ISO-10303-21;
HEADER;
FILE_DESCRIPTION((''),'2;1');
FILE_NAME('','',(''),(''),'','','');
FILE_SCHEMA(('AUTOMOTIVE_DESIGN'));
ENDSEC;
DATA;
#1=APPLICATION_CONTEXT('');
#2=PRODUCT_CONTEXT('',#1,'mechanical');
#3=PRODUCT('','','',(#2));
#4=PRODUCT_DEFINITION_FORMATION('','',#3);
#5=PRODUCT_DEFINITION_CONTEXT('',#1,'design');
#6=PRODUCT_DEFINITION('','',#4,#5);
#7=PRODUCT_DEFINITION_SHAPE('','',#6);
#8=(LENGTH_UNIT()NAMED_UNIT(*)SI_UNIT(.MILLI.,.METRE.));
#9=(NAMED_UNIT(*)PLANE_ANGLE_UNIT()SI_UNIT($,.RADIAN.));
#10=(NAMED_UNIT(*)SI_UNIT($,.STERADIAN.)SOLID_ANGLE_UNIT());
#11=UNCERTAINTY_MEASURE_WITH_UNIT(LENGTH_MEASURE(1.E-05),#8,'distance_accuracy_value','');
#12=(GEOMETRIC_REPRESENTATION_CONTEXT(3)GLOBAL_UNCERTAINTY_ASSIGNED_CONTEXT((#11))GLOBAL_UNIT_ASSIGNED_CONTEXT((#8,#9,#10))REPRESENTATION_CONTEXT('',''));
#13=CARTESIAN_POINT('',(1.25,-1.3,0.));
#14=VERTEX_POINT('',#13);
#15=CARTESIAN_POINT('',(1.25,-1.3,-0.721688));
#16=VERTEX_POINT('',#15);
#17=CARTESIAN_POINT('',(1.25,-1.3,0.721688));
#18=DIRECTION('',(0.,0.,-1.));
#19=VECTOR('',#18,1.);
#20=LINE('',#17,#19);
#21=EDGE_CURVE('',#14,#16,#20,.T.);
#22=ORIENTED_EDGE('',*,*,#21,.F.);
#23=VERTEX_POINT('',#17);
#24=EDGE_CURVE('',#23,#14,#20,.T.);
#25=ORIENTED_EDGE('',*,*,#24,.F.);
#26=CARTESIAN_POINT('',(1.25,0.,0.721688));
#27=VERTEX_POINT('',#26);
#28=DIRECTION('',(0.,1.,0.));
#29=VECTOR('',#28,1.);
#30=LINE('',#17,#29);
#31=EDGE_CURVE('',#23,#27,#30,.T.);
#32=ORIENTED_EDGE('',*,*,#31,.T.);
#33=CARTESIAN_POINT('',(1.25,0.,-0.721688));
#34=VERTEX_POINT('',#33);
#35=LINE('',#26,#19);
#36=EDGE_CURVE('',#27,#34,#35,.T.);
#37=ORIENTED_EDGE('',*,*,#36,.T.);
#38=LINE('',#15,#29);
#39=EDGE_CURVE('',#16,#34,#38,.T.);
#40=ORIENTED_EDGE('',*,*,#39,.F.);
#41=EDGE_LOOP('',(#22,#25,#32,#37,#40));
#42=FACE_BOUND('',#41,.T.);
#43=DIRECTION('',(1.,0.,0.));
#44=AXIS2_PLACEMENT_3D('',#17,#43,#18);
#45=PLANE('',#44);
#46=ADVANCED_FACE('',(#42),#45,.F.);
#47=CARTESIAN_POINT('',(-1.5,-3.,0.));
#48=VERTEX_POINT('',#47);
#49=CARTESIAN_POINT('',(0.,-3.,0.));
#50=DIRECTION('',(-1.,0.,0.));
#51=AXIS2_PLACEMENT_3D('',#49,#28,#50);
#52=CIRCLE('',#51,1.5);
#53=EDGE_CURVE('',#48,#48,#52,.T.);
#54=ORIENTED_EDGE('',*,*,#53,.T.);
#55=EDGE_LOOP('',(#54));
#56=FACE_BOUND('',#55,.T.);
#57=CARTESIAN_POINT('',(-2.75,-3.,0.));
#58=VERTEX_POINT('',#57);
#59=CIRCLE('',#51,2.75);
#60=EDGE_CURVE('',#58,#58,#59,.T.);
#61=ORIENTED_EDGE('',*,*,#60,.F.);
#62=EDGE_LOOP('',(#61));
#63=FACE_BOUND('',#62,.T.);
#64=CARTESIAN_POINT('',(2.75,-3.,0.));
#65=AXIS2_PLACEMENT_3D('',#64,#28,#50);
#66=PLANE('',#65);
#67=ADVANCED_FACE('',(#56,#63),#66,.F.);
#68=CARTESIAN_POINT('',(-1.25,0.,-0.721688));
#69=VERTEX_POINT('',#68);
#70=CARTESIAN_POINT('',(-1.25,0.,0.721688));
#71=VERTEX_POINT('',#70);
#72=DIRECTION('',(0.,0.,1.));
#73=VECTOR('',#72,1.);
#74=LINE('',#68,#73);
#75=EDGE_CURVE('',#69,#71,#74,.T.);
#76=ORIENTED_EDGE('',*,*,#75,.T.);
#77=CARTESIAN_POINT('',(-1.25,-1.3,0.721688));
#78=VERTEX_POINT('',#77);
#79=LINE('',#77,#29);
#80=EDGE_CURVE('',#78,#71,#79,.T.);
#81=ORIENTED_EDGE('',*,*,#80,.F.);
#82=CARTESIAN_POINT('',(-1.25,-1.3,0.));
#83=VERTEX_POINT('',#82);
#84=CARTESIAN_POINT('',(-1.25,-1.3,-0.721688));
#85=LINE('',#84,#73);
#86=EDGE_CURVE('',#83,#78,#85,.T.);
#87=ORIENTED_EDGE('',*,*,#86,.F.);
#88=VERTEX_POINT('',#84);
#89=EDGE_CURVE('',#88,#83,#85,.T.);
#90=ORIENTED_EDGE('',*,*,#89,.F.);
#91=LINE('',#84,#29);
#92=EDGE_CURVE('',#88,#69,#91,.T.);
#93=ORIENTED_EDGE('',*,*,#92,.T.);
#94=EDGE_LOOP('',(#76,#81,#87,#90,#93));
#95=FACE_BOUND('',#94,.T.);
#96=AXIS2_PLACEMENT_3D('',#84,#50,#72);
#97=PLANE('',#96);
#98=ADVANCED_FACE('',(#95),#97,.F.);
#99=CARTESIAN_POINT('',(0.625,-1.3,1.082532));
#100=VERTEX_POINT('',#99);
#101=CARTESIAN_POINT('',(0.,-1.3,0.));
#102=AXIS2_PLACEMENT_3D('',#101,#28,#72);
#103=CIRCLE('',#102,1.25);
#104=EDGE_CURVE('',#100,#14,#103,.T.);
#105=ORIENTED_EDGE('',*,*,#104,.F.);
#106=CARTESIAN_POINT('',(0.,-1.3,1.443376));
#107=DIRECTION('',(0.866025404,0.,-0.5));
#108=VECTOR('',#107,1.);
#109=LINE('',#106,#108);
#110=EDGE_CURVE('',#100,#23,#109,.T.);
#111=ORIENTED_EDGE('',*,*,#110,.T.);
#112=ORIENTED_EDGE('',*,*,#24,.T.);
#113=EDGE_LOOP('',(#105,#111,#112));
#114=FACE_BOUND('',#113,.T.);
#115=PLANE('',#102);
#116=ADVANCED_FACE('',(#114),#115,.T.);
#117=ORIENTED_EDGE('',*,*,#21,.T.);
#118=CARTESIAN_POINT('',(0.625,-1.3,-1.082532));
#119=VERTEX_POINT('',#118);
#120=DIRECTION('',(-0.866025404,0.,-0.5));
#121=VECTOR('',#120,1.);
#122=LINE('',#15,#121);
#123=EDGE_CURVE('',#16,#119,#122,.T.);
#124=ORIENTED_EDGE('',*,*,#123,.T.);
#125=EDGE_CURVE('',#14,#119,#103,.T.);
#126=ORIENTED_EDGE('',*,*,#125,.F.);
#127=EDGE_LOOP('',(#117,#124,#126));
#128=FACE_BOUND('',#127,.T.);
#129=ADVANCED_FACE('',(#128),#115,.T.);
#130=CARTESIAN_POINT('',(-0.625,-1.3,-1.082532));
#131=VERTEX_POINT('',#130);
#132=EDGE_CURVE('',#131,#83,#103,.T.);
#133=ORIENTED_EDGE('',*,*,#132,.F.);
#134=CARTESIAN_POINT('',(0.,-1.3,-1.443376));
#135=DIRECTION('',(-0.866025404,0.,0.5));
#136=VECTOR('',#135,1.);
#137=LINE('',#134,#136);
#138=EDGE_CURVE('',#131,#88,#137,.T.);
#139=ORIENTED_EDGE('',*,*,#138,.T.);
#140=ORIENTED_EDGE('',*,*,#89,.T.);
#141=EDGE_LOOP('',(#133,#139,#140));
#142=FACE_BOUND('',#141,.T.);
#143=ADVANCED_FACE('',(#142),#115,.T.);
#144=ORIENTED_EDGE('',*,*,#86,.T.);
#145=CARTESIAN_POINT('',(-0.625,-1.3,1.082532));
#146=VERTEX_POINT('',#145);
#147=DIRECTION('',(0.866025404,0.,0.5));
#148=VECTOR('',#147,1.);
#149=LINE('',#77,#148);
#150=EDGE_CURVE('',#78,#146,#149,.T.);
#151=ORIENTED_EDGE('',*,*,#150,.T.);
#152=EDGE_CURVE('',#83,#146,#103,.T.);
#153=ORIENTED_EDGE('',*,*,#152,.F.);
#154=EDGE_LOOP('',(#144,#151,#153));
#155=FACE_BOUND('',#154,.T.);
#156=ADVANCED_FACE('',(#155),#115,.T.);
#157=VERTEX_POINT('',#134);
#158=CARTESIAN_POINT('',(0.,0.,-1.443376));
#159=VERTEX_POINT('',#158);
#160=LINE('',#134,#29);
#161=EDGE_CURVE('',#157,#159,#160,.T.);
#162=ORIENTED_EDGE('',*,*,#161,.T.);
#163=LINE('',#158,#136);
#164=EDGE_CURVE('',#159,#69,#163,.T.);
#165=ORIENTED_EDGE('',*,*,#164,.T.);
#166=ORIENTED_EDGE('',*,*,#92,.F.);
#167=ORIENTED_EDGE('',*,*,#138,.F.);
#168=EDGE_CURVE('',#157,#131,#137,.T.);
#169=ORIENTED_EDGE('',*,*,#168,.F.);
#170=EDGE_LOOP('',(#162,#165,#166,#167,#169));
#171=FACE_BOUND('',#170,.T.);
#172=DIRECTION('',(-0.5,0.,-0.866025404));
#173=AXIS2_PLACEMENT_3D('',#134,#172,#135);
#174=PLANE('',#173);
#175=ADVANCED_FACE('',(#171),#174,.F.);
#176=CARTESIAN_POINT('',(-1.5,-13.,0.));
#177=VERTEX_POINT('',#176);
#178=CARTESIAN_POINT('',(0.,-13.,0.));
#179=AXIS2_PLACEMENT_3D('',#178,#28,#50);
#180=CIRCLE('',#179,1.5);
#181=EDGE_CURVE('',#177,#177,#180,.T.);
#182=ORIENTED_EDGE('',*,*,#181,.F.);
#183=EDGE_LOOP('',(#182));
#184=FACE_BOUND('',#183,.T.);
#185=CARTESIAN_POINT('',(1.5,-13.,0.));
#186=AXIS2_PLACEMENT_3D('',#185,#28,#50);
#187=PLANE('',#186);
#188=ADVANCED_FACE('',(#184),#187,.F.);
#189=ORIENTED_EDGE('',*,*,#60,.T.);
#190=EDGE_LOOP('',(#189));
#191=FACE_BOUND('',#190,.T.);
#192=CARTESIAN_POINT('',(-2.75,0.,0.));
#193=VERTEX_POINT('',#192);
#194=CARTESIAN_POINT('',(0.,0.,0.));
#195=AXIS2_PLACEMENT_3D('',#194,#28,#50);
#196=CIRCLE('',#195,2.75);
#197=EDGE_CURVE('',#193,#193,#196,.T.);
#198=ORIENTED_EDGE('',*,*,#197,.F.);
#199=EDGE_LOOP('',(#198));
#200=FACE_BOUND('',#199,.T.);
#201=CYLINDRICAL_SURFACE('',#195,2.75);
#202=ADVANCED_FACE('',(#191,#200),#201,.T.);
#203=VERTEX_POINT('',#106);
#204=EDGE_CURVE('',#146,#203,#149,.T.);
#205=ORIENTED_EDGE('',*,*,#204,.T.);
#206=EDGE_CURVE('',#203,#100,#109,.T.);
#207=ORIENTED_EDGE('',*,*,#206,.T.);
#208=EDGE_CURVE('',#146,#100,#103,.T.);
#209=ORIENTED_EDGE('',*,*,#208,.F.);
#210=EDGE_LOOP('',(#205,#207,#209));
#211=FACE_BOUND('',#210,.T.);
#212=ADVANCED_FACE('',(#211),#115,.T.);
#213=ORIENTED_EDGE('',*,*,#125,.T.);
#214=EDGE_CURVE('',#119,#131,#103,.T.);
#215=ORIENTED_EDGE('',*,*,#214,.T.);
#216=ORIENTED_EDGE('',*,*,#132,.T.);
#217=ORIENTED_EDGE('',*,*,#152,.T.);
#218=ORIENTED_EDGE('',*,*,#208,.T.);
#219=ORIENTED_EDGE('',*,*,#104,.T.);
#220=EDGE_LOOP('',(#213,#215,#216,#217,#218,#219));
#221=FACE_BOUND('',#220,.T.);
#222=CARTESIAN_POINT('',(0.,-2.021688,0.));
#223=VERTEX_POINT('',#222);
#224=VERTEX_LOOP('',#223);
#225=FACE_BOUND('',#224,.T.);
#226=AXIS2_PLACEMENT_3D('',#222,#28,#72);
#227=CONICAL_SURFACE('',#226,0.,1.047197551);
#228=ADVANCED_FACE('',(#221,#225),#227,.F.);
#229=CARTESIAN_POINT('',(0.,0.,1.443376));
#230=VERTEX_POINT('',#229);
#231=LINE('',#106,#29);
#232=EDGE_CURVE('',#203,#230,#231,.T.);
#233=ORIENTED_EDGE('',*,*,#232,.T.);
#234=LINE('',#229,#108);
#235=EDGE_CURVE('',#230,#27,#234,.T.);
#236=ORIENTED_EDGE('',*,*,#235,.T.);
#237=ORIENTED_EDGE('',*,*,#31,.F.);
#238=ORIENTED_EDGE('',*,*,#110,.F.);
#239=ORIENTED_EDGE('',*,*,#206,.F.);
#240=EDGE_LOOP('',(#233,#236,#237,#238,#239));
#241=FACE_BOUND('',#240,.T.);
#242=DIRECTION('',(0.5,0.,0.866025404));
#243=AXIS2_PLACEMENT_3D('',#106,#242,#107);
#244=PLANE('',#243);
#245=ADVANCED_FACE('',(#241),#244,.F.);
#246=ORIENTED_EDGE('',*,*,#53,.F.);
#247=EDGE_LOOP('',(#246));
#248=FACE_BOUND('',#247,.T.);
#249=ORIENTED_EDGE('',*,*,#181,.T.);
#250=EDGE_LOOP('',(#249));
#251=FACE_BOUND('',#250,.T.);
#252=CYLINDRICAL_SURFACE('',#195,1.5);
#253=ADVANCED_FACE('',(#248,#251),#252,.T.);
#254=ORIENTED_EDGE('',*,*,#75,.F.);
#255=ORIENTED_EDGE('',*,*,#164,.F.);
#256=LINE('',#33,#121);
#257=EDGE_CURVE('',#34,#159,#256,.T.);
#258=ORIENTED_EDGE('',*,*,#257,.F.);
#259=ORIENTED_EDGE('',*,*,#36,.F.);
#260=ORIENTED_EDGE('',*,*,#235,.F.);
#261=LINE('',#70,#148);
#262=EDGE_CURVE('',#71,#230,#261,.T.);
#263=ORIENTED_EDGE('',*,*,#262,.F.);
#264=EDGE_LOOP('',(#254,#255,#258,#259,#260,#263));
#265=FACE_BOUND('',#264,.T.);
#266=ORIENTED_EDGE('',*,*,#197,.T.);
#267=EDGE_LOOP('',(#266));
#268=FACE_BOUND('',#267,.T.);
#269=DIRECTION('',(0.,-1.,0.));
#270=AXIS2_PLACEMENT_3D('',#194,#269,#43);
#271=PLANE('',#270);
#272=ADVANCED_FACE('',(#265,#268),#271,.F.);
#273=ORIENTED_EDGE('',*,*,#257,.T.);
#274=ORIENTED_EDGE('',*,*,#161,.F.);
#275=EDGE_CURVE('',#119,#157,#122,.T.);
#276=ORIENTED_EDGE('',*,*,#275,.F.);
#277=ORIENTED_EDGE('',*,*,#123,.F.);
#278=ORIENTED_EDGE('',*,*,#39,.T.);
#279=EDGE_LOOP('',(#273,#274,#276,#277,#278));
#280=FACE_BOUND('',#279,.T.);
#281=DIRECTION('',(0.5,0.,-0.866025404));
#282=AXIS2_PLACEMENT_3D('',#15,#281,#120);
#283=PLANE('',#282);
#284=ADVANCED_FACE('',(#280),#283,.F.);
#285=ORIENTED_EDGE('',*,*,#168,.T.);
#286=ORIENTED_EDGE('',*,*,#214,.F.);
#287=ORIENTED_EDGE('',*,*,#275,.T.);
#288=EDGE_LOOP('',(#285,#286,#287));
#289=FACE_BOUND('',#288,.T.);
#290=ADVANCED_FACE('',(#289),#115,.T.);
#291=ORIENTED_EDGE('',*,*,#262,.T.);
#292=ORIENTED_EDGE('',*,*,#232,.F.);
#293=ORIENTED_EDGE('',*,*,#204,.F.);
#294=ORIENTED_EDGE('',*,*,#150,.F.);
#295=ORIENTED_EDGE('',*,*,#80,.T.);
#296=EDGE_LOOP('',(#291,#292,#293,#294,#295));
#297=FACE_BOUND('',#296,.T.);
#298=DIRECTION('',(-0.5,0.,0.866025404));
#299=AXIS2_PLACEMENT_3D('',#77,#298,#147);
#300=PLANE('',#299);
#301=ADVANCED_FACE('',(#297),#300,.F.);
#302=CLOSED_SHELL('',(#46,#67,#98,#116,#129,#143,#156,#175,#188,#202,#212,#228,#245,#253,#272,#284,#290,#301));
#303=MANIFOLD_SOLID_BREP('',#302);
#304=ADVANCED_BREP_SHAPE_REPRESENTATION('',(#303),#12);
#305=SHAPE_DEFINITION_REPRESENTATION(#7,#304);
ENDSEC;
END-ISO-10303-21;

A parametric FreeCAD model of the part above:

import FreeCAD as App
import Part
import Sketcher
from FreeCAD import Vector
Q = App.Units.Quantity


def add_polygon(sketch, points):
    """Adds a closed chain of lines whose ends are joined by coincident constraints."""
    first, n = sketch.GeometryCount, len(points)
    for a, b in zip(points, points[1:] + points[:1]):
        sketch.addGeometry(Part.LineSegment(App.Vector(*a, 0), App.Vector(*b, 0)), False)
    for i in range(n):
        sketch.addConstraint(Sketcher.Constraint("Coincident", first + i, 2, first + (i + 1) % n, 1))

doc = App.newDocument("Part")
body = doc.addObject("PartDesign::Body", "Body")

# Sketch on XY plane
sketch1 = body.newObject("Sketcher::SketchObject", "Sketch")
sketch1.AttachmentSupport = (doc.getObject("XY_Plane"), [""])
sketch1.MapMode = "FlatFace"
add_polygon(sketch1, [(2.8, 0), (0, 0), (0, -13), (1.5, -13), (1.5, -3), (2.8, -3)])  # lines 0-5
sketch1.addConstraint(Sketcher.Constraint("Horizontal", 0))
sketch1.addConstraint(Sketcher.Constraint("Vertical", 1))
sketch1.addConstraint(Sketcher.Constraint("Horizontal", 2))
sketch1.addConstraint(Sketcher.Constraint("Vertical", 3))
sketch1.addConstraint(Sketcher.Constraint("Horizontal", 4))
sketch1.addConstraint(Sketcher.Constraint("Vertical", 5))
sketch1.addConstraint(Sketcher.Constraint("Coincident", 0, 2, -1, 1))
sketch1.addConstraint(Sketcher.Constraint("DistanceY", 1, 2, 1, 1, Q("13 mm")))
sketch1.addConstraint(Sketcher.Constraint("DistanceY", 3, 1, 3, 2, Q("10 mm")))
sketch1.addConstraint(Sketcher.Constraint("DistanceX", 2, 1, 2, 2, Q("1.5 mm")))
sketch1.addConstraint(Sketcher.Constraint("DistanceX", 0, 2, 0, 1, Q("2.75 mm")))
revolution = body.newObject("PartDesign::Revolution", "Revolution")
revolution.Profile = sketch1
revolution.ReferenceAxis = (sketch1, ["V_Axis"])
revolution.Angle = 360

# Sketch on XY plane
sketch2 = body.newObject("Sketcher::SketchObject", "Sketch001")
sketch2.AttachmentSupport = (doc.getObject("XY_Plane"), [""])
sketch2.MapMode = "FlatFace"
add_polygon(sketch2, [(1.2, -1.3), (1.2, 0), (0, 0), (0, -2)])  # lines 0-3
sketch2.addConstraint(Sketcher.Constraint("Vertical", 0))
sketch2.addConstraint(Sketcher.Constraint("Horizontal", 1))
sketch2.addConstraint(Sketcher.Constraint("Vertical", 2))
sketch2.addConstraint(Sketcher.Constraint("Coincident", 1, 2, -1, 1))
sketch2.addConstraint(Sketcher.Constraint("Angle", 3, Q("30 deg")))
sketch2.addConstraint(Sketcher.Constraint("DistanceY", 0, 1, 0, 2, Q("1.3 mm")))
sketch2.addConstraint(Sketcher.Constraint("DistanceX", 1, 2, 1, 1, Q("1.25 mm")))
groove = body.newObject("PartDesign::Groove", "Groove")
groove.Profile = sketch2
groove.ReferenceAxis = (sketch2, ["V_Axis"])
groove.Angle = 360

# Sketch on XZ plane
sketch3 = body.newObject("Sketcher::SketchObject", "Sketch002")
sketch3.AttachmentSupport = (doc.getObject("XZ_Plane"), [""])
sketch3.MapMode = "FlatFace"
add_polygon(sketch3, [(0, -1.4), (-1.2, -0.7), (-1.2, 0.7), (0, 1.4), (1.2, 0.7), (1.2, -0.7)])  # lines 0-5
sketch3.addConstraint(Sketcher.Constraint("Vertical", 1))
sketch3.addConstraint(Sketcher.Constraint("Vertical", 4))
sketch3.addConstraint(Sketcher.Constraint("Symmetric", 0, 2, 3, 2, -1, 1))
sketch3.addConstraint(Sketcher.Constraint("Symmetric", 2, 2, 5, 2, -1, 1))
sketch3.addConstraint(Sketcher.Constraint("PointOnObject", 2, 2, -2))
sketch3.addConstraint(Sketcher.Constraint("Parallel", 2, 5))
sketch3.addConstraint(Sketcher.Constraint("Horizontal", 1, 2, 3, 2))
sketch3.addConstraint(Sketcher.Constraint("Angle", 0, Q("150 deg")))
sketch3.addConstraint(Sketcher.Constraint("DistanceX", 1, 2, 3, 2, Q("2.5 mm")))
sketch3.addConstraint(Sketcher.Constraint("DistanceY", 1, 1, 1, 2, Q("1.443376 mm")))
pocket1 = body.newObject("PartDesign::Pocket", "Pocket")
pocket1.Profile = sketch3
pocket1.Length = 1.3
pocket1.Reversed = True

doc.recompute()
